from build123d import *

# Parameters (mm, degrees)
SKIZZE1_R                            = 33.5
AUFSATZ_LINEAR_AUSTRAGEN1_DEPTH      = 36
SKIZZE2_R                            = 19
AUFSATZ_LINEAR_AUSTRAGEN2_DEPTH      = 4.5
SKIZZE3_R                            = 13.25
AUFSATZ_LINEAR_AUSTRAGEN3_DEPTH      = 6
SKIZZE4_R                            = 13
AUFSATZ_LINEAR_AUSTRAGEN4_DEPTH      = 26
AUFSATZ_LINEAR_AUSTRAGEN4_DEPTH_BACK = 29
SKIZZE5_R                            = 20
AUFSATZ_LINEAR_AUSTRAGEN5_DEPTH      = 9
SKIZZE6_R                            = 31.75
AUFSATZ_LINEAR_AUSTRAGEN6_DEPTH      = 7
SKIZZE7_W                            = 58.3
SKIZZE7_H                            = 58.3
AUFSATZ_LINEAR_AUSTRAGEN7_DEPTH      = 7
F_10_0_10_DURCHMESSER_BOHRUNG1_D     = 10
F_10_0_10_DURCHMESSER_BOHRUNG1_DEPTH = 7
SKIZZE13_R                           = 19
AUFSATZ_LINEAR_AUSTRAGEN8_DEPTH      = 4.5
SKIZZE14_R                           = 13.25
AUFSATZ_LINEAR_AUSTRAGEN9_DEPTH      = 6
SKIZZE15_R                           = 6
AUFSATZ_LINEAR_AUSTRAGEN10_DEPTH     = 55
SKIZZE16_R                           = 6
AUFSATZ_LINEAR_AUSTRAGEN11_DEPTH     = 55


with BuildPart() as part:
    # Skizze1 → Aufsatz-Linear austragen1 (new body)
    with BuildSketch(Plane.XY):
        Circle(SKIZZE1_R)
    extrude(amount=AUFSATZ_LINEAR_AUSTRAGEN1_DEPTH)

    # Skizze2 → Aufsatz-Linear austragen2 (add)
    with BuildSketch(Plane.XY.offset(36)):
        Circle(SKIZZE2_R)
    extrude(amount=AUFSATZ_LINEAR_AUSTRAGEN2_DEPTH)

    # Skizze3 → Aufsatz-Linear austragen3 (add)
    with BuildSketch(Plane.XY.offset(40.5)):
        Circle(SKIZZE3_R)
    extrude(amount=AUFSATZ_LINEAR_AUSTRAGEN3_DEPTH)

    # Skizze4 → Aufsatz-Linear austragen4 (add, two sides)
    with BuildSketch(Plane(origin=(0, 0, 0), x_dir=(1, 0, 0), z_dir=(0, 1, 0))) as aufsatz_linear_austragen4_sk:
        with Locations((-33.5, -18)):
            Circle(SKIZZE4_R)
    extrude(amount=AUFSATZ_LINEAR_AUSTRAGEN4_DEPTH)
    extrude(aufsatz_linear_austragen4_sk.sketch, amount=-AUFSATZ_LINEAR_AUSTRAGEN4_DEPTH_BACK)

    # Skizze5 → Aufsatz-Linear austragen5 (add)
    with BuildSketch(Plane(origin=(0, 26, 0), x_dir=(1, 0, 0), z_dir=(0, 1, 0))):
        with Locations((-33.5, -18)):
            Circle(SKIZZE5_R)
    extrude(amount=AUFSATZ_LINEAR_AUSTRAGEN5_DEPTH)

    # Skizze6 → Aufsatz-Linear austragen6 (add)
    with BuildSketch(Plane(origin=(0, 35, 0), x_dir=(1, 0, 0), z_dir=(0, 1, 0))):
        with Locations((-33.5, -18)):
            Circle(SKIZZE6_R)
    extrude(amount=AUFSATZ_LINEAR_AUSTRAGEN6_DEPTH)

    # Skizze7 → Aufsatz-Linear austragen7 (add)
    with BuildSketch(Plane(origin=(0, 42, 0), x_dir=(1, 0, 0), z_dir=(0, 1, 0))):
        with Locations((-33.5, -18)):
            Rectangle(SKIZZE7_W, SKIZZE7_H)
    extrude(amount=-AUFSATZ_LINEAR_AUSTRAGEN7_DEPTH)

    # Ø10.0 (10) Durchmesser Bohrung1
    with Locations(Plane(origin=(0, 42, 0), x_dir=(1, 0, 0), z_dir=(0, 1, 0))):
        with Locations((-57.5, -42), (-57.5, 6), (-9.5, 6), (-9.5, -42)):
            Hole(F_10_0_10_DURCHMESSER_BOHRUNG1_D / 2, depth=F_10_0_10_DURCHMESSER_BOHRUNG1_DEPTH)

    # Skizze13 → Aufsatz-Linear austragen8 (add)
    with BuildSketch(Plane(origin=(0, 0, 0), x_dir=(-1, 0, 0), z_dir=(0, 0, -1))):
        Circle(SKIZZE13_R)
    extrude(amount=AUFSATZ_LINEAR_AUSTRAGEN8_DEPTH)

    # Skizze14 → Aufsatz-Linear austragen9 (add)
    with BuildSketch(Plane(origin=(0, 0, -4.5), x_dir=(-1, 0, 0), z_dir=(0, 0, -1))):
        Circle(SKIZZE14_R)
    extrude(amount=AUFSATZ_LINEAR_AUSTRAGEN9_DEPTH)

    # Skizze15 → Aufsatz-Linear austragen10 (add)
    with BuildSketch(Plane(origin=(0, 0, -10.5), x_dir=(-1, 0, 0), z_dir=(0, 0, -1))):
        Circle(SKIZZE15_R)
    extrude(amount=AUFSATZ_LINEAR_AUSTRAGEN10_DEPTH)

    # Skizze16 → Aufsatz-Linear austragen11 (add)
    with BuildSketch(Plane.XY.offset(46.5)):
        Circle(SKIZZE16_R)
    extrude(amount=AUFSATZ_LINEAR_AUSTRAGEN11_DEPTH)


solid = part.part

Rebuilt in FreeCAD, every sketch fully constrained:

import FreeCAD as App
import Part
import Sketcher
from FreeCAD import Vector
Q = App.Units.Quantity


def add_polygon(sketch, points):
    """Adds a closed chain of lines whose ends are joined by coincident constraints."""
    first, n = sketch.GeometryCount, len(points)
    for a, b in zip(points, points[1:] + points[:1]):
        sketch.addGeometry(Part.LineSegment(App.Vector(*a, 0), App.Vector(*b, 0)), False)
    for i in range(n):
        sketch.addConstraint(Sketcher.Constraint("Coincident", first + i, 2, first + (i + 1) % n, 1))

doc = App.newDocument("Part")
params = doc.addObject("Spreadsheet::Sheet", "Params")
for row, (alias, value) in enumerate([
    ("sketch1_diameter", "67 mm"),
    ("pad1_length", "36 mm"),
    ("sketch2_diameter", "38 mm"),
    ("pad2_length", "4.5 mm"),
    ("sketch3_diameter", "26.5 mm"),
    ("pad3_length", "6 mm"),
    ("sketch4_diameter", "26 mm"),
    ("pad4_length", "26 mm"),
    ("pad4_length2", "29 mm"),
    ("sketch5_diameter", "40 mm"),
    ("pad5_length", "9 mm"),
    ("sketch6_diameter", "63.5 mm"),
    ("pad6_length", "7 mm"),
    ("sketch7_width", "58.3 mm"),
    ("pad7_length", "7 mm"),
    ("sketch8_diameter", "10 mm"),
    ("hole_diameter", "10 mm"),
    ("hole_depth", "7 mm"),
    ("sketch9_diameter", "38 mm"),
    ("pad8_length", "4.5 mm"),
    ("sketch10_diameter", "26.5 mm"),
    ("pad9_length", "6 mm"),
    ("sketch11_diameter", "12 mm"),
    ("pad10_length", "55 mm"),
    ("sketch12_diameter", "12 mm"),
    ("pad11_length", "55 mm"),
], start=1):
    params.set(f"A{row}", alias)
    params.set(f"B{row}", "=" + value)
    params.setAlias(f"B{row}", alias)

body = doc.addObject("PartDesign::Body", "Body")

sketch1 = body.newObject("Sketcher::SketchObject", "Sketch")
sketch1.AttachmentSupport = (doc.getObject("XY_Plane"), [""])
sketch1.MapMode = "FlatFace"
sketch1.addGeometry(Part.Circle(Vector(0, 0, 0), Vector(0, 0, 1), 34), False)
sketch1.addConstraint([
    Sketcher.Constraint("Coincident", 0, 3, -1, 1),
    Sketcher.Constraint("Diameter", 0, Q("67 mm")),
])
sketch1.setExpression("Constraints[1]", "Params.sketch1_diameter")
pad1 = body.newObject("PartDesign::Pad", "Pad")
pad1.Profile = sketch1
pad1.setExpression("Length", "Params.pad1_length")

sketch2 = body.newObject("Sketcher::SketchObject", "Sketch001")
sketch2.AttachmentSupport = (doc.getObject("XY_Plane"), [""])
sketch2.MapMode = "FlatFace"
sketch2.AttachmentOffset = App.Placement(Vector(0, 0, 36), App.Rotation())
sketch2.addGeometry(Part.Circle(Vector(0, 0, 0), Vector(0, 0, 1), 19), False)
sketch2.addConstraint([
    Sketcher.Constraint("Coincident", 0, 3, -1, 1),
    Sketcher.Constraint("Diameter", 0, Q("38 mm")),
])
sketch2.setExpression("Constraints[1]", "Params.sketch2_diameter")
pad2 = body.newObject("PartDesign::Pad", "Pad001")
pad2.Profile = sketch2
pad2.setExpression("Length", "Params.pad2_length")

sketch3 = body.newObject("Sketcher::SketchObject", "Sketch002")
sketch3.AttachmentSupport = (doc.getObject("XY_Plane"), [""])
sketch3.MapMode = "FlatFace"
sketch3.AttachmentOffset = App.Placement(Vector(0, 0, 40.5), App.Rotation())
sketch3.addGeometry(Part.Circle(Vector(0, 0, 0), Vector(0, 0, 1), 13), False)
sketch3.addConstraint([
    Sketcher.Constraint("Coincident", 0, 3, -1, 1),
    Sketcher.Constraint("Diameter", 0, Q("26.5 mm")),
])
sketch3.setExpression("Constraints[1]", "Params.sketch3_diameter")
pad3 = body.newObject("PartDesign::Pad", "Pad002")
pad3.Profile = sketch3
pad3.setExpression("Length", "Params.pad3_length")

sketch4 = body.newObject("Sketcher::SketchObject", "Sketch003")
sketch4.AttachmentSupport = (doc.getObject("XZ_Plane"), [""])
sketch4.MapMode = "FlatFace"
sketch4.addGeometry(Part.Circle(Vector(-34, 18, 0), Vector(0, 0, 1), 13), False)
sketch4.addConstraint([
    Sketcher.Constraint("Diameter", 0, Q("26 mm")),
    Sketcher.Constraint("DistanceY", -1, 1, 0, 3, Q("18 mm")),
    Sketcher.Constraint("DistanceX", 0, 3, -1, 1, Q("33.5 mm")),
])
sketch4.setExpression("Constraints[0]", "Params.sketch4_diameter")
pad4 = body.newObject("PartDesign::Pad", "Pad003")
pad4.Profile = sketch4
pad4.Type = "TwoLengths"
pad4.setExpression("Length", "Params.pad4_length")
pad4.setExpression("Length2", "Params.pad4_length2")
pad4.Reversed = True

sketch5 = body.newObject("Sketcher::SketchObject", "Sketch004")
sketch5.AttachmentSupport = (doc.getObject("XZ_Plane"), [""])
sketch5.MapMode = "FlatFace"
sketch5.AttachmentOffset = App.Placement(Vector(0, 0, -26), App.Rotation())
sketch5.addGeometry(Part.Circle(Vector(-34, 18, 0), Vector(0, 0, 1), 20), False)
sketch5.addConstraint([
    Sketcher.Constraint("Diameter", 0, Q("40 mm")),
    Sketcher.Constraint("DistanceY", -1, 1, 0, 3, Q("18 mm")),
    Sketcher.Constraint("DistanceX", 0, 3, -1, 1, Q("33.5 mm")),
])
sketch5.setExpression("Constraints[0]", "Params.sketch5_diameter")
pad5 = body.newObject("PartDesign::Pad", "Pad004")
pad5.Profile = sketch5
pad5.setExpression("Length", "Params.pad5_length")
pad5.Reversed = True

sketch6 = body.newObject("Sketcher::SketchObject", "Sketch005")
sketch6.AttachmentSupport = (doc.getObject("XZ_Plane"), [""])
sketch6.MapMode = "FlatFace"
sketch6.AttachmentOffset = App.Placement(Vector(0, 0, -35), App.Rotation())
sketch6.addGeometry(Part.Circle(Vector(-34, 18, 0), Vector(0, 0, 1), 32), False)
sketch6.addConstraint([
    Sketcher.Constraint("Diameter", 0, Q("63.5 mm")),
    Sketcher.Constraint("DistanceY", -1, 1, 0, 3, Q("18 mm")),
    Sketcher.Constraint("DistanceX", 0, 3, -1, 1, Q("33.5 mm")),
])
sketch6.setExpression("Constraints[0]", "Params.sketch6_diameter")
pad6 = body.newObject("PartDesign::Pad", "Pad005")
pad6.Profile = sketch6
pad6.setExpression("Length", "Params.pad6_length")
pad6.Reversed = True

sketch7 = body.newObject("Sketcher::SketchObject", "Sketch006")
sketch7.AttachmentSupport = (doc.getObject("XZ_Plane"), [""])
sketch7.MapMode = "FlatFace"
sketch7.AttachmentOffset = App.Placement(Vector(0, 0, -42), App.Rotation())
add_polygon(sketch7, [(-63, -11), (-63, 47), (-4, 47), (-4, -11)])
sketch7.addConstraint([
    Sketcher.Constraint("Vertical", 0),
    Sketcher.Constraint("Horizontal", 1),
    Sketcher.Constraint("Vertical", 2),
    Sketcher.Constraint("Horizontal", 3),
    Sketcher.Constraint("Equal", 3, 0),
    Sketcher.Constraint("DistanceX", 1, 1, 1, 2, Q("58.3 mm")),
    Sketcher.Constraint("DistanceX", 0, 2, -1, 1, Q("62.65 mm")),
    Sketcher.Constraint("DistanceY", -1, 1, 0, 2, Q("47.15 mm")),
])
sketch7.setExpression("Constraints[9]", "Params.sketch7_width")
pad7 = body.newObject("PartDesign::Pad", "Pad006")
pad7.Profile = sketch7
pad7.setExpression("Length", "Params.pad7_length")

sketch8 = body.newObject("Sketcher::SketchObject", "Sketch007")
sketch8.AttachmentSupport = (doc.getObject("XZ_Plane"), [""])
sketch8.MapMode = "FlatFace"
sketch8.AttachmentOffset = App.Placement(Vector(0, 0, -42), App.Rotation())
sketch8.addGeometry([
    Part.Circle(Vector(-58, 42, 0), Vector(0, 0, 1), 5),
    Part.Circle(Vector(-58, -6, 0), Vector(0, 0, 1), 5),
    Part.Circle(Vector(-10, -6, 0), Vector(0, 0, 1), 5),
    Part.Circle(Vector(-10, 42, 0), Vector(0, 0, 1), 5),
], False)
sketch8.addConstraint([
    Sketcher.Constraint("Equal", 0, 1),
    Sketcher.Constraint("Equal", 1, 2),
    Sketcher.Constraint("Equal", 2, 3),
    Sketcher.Constraint("Horizontal", 1, 3, 2, 3),
    Sketcher.Constraint("Horizontal", 0, 3, 3, 3),
    Sketcher.Constraint("Vertical", 0, 3, 1, 3),
    Sketcher.Constraint("Vertical", 2, 3, 3, 3),
    Sketcher.Constraint("Diameter", 0, Q("10 mm")),
    Sketcher.Constraint("DistanceY", -1, 1, 0, 3, Q("42 mm")),
    Sketcher.Constraint("DistanceY", 1, 3, -1, 1, Q("6 mm")),
    Sketcher.Constraint("DistanceX", 1, 3, 2, 3, Q("48 mm")),
    Sketcher.Constraint("DistanceX", 0, 3, -1, 1, Q("57.5 mm")),
])
sketch8.setExpression("Constraints[7]", "Params.sketch8_diameter")
doc.recompute()
hole = body.newObject("PartDesign::Hole", "Hole")
hole.Profile = sketch8
hole.ThreadType = "None"
hole.setExpression("Diameter", "Params.hole_diameter")
hole.DepthType = "Dimension"
hole.setExpression("Depth", "Params.hole_depth")
hole.DrillPoint = "Flat"
hole.Reversed = True

sketch9 = body.newObject("Sketcher::SketchObject", "Sketch008")
sketch9.AttachmentSupport = (doc.getObject("XY_Plane"), [""])
sketch9.MapMode = "FlatFace"
sketch9.addGeometry(Part.Circle(Vector(0, 0, 0), Vector(0, 0, 1), 19), False)
sketch9.addConstraint([
    Sketcher.Constraint("Coincident", 0, 3, -1, 1),
    Sketcher.Constraint("Diameter", 0, Q("38 mm")),
])
sketch9.setExpression("Constraints[1]", "Params.sketch9_diameter")
pad8 = body.newObject("PartDesign::Pad", "Pad007")
pad8.Profile = sketch9
pad8.setExpression("Length", "Params.pad8_length")
pad8.Reversed = True

sketch10 = body.newObject("Sketcher::SketchObject", "Sketch009")
sketch10.AttachmentSupport = (doc.getObject("XY_Plane"), [""])
sketch10.MapMode = "FlatFace"
sketch10.AttachmentOffset = App.Placement(Vector(0, 0, -4.5), App.Rotation())
sketch10.addGeometry(Part.Circle(Vector(0, 0, 0), Vector(0, 0, 1), 13), False)
sketch10.addConstraint([
    Sketcher.Constraint("Coincident", 0, 3, -1, 1),
    Sketcher.Constraint("Diameter", 0, Q("26.5 mm")),
])
sketch10.setExpression("Constraints[1]", "Params.sketch10_diameter")
pad9 = body.newObject("PartDesign::Pad", "Pad008")
pad9.Profile = sketch10
pad9.setExpression("Length", "Params.pad9_length")
pad9.Reversed = True

sketch11 = body.newObject("Sketcher::SketchObject", "Sketch010")
sketch11.AttachmentSupport = (doc.getObject("XY_Plane"), [""])
sketch11.MapMode = "FlatFace"
sketch11.AttachmentOffset = App.Placement(Vector(0, 0, -10.5), App.Rotation())
sketch11.addGeometry(Part.Circle(Vector(0, 0, 0), Vector(0, 0, 1), 6), False)
sketch11.addConstraint([
    Sketcher.Constraint("Coincident", 0, 3, -1, 1),
    Sketcher.Constraint("Diameter", 0, Q("12 mm")),
])
sketch11.setExpression("Constraints[1]", "Params.sketch11_diameter")
pad10 = body.newObject("PartDesign::Pad", "Pad009")
pad10.Profile = sketch11
pad10.setExpression("Length", "Params.pad10_length")
pad10.Reversed = True

sketch12 = body.newObject("Sketcher::SketchObject", "Sketch011")
sketch12.AttachmentSupport = (doc.getObject("XY_Plane"), [""])
sketch12.MapMode = "FlatFace"
sketch12.AttachmentOffset = App.Placement(Vector(0, 0, 46.5), App.Rotation())
sketch12.addGeometry(Part.Circle(Vector(0, 0, 0), Vector(0, 0, 1), 6), False)
sketch12.addConstraint([
    Sketcher.Constraint("Coincident", 0, 3, -1, 1),
    Sketcher.Constraint("Diameter", 0, Q("12 mm")),
])
sketch12.setExpression("Constraints[1]", "Params.sketch12_diameter")
pad11 = body.newObject("PartDesign::Pad", "Pad010")
pad11.Profile = sketch12
pad11.setExpression("Length", "Params.pad11_length")

doc.recompute()
